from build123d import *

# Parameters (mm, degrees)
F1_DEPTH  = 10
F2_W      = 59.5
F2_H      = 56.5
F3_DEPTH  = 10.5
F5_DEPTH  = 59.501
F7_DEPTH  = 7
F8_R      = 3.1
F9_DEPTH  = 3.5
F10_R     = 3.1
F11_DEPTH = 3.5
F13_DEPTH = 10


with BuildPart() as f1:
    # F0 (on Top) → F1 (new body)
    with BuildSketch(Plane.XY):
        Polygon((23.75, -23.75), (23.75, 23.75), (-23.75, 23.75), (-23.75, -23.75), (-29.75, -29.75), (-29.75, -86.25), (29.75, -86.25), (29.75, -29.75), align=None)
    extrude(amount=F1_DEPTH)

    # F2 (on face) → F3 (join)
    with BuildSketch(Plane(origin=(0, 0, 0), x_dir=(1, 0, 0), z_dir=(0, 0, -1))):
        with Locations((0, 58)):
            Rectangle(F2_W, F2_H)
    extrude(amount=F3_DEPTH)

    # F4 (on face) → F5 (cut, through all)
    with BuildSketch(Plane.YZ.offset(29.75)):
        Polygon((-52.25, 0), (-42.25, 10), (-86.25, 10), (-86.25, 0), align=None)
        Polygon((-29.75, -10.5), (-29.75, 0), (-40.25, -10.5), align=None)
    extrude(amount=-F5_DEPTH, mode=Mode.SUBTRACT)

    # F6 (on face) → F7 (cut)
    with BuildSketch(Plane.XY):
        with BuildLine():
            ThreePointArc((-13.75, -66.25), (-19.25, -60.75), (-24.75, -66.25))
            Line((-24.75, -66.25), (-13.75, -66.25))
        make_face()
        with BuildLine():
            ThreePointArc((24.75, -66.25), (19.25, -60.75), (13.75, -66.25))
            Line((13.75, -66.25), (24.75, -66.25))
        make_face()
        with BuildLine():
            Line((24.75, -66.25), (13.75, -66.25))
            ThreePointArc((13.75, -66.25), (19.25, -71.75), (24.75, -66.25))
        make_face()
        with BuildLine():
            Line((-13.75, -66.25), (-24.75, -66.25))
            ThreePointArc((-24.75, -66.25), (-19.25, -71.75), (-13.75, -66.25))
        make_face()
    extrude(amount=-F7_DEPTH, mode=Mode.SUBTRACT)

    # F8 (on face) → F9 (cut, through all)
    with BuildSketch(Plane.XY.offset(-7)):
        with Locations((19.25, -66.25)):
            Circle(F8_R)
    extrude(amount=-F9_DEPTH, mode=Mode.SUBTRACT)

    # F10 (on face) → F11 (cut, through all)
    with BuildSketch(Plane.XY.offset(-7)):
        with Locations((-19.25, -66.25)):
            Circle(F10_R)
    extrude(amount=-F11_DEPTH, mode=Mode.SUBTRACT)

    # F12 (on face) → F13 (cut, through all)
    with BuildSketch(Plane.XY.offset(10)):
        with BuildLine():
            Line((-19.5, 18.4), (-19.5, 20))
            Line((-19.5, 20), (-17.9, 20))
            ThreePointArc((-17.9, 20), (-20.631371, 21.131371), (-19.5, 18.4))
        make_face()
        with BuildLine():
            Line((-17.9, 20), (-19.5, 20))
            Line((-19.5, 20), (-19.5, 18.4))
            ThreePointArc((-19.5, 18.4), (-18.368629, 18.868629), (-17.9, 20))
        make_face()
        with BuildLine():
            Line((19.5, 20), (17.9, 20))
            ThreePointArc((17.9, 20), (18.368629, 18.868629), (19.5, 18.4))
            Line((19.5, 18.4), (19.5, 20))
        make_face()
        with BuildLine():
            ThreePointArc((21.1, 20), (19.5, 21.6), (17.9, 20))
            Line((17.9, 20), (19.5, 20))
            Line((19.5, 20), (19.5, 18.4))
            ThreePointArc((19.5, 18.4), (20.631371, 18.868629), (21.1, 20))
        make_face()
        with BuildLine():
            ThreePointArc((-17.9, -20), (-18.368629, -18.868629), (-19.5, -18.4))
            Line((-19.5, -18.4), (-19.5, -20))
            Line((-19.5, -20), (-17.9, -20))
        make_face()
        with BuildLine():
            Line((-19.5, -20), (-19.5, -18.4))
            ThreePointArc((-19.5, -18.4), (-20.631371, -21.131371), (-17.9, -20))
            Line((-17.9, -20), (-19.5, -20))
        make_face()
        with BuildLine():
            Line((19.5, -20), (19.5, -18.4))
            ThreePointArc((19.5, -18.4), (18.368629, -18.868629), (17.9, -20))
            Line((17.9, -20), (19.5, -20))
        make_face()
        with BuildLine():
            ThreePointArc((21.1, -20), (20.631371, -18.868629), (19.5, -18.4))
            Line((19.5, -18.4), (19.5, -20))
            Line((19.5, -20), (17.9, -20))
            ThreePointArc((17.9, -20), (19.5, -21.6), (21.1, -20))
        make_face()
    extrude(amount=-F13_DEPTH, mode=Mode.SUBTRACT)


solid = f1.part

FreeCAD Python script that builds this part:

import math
import FreeCAD as App
import Part
import Sketcher

doc = App.newDocument("Part")
body = doc.addObject("PartDesign::Body", "Body")

# Sketch on XY plane
sketch1 = doc.addObject("Sketcher::SketchObject", "Sketch")
body.addObject(sketch1)
sketch1.AttachmentSupport = (doc.XY_Plane, [""])
sketch1.MapMode = "FlatFace"
sketch1.addGeometry(Part.LineSegment(App.Vector(24, -24, 0), App.Vector(24, 24, 0)), False)
sketch1.addGeometry(Part.LineSegment(App.Vector(24, 24, 0), App.Vector(-24, 24, 0)), False)
sketch1.addGeometry(Part.LineSegment(App.Vector(-24, 24, 0), App.Vector(-24, -24, 0)), False)
sketch1.addGeometry(Part.LineSegment(App.Vector(-24, -24, 0), App.Vector(-30, -30, 0)), False)
sketch1.addGeometry(Part.LineSegment(App.Vector(-30, -30, 0), App.Vector(-30, -86, 0)), False)
sketch1.addGeometry(Part.LineSegment(App.Vector(-30, -86, 0), App.Vector(30, -86, 0)), False)
sketch1.addGeometry(Part.LineSegment(App.Vector(30, -86, 0), App.Vector(30, -30, 0)), False)
sketch1.addGeometry(Part.LineSegment(App.Vector(30, -30, 0), App.Vector(24, -24, 0)), False)
sketch1.addConstraint(Sketcher.Constraint("Coincident", 0, 2, 1, 1))
sketch1.addConstraint(Sketcher.Constraint("Coincident", 1, 2, 2, 1))
sketch1.addConstraint(Sketcher.Constraint("Coincident", 2, 2, 3, 1))
sketch1.addConstraint(Sketcher.Constraint("Coincident", 3, 2, 4, 1))
sketch1.addConstraint(Sketcher.Constraint("Coincident", 4, 2, 5, 1))
sketch1.addConstraint(Sketcher.Constraint("Coincident", 5, 2, 6, 1))
sketch1.addConstraint(Sketcher.Constraint("Coincident", 6, 2, 7, 1))
sketch1.addConstraint(Sketcher.Constraint("Coincident", 7, 2, 0, 1))
sketch1.addConstraint(Sketcher.Constraint("Vertical", 0))
sketch1.addConstraint(Sketcher.Constraint("Horizontal", 1))
sketch1.addConstraint(Sketcher.Constraint("Vertical", 2))
sketch1.addConstraint(Sketcher.Constraint("Vertical", 4))
sketch1.addConstraint(Sketcher.Constraint("Horizontal", 5))
sketch1.addConstraint(Sketcher.Constraint("Vertical", 6))
sketch1.addConstraint(Sketcher.Constraint("Symmetric", 0, 2, 2, 2, -1, 1))
sketch1.addConstraint(Sketcher.Constraint("Symmetric", 3, 2, 6, 2, -2))
sketch1.addConstraint(Sketcher.Constraint("Perpendicular", 3, 7))
sketch1.addConstraint(Sketcher.Constraint("Horizontal", 2, 2, 7, 2))
sketch1.addConstraint(Sketcher.Constraint("Equal", 1, 0))
sketch1.addConstraint(Sketcher.Constraint("DistanceX", 1, 2, 1, 1, 47.5))
sketch1.addConstraint(Sketcher.Constraint("DistanceX", 5, 1, 5, 2, 59.5))
sketch1.addConstraint(Sketcher.Constraint("DistanceY", 4, 2, 4, 1, 56.5))
pad1 = doc.addObject("PartDesign::Pad", "Pad")
body.addObject(pad1)
pad1.Profile = sketch1
pad1.Length = 10

# Sketch on XY plane
sketch2 = doc.addObject("Sketcher::SketchObject", "Sketch001")
body.addObject(sketch2)
sketch2.AttachmentSupport = (doc.XY_Plane, [""])
sketch2.MapMode = "FlatFace"
sketch2.addGeometry(Part.LineSegment(App.Vector(-30, -86, 0), App.Vector(-30, -30, 0)), False)
sketch2.addGeometry(Part.LineSegment(App.Vector(-30, -30, 0), App.Vector(30, -30, 0)), False)
sketch2.addGeometry(Part.LineSegment(App.Vector(30, -30, 0), App.Vector(30, -86, 0)), False)
sketch2.addGeometry(Part.LineSegment(App.Vector(30, -86, 0), App.Vector(-30, -86, 0)), False)
sketch2.addConstraint(Sketcher.Constraint("Coincident", 0, 2, 1, 1))
sketch2.addConstraint(Sketcher.Constraint("Coincident", 1, 2, 2, 1))
sketch2.addConstraint(Sketcher.Constraint("Coincident", 2, 2, 3, 1))
sketch2.addConstraint(Sketcher.Constraint("Coincident", 3, 2, 0, 1))
sketch2.addConstraint(Sketcher.Constraint("Vertical", 0))
sketch2.addConstraint(Sketcher.Constraint("Horizontal", 1))
sketch2.addConstraint(Sketcher.Constraint("Vertical", 2))
sketch2.addConstraint(Sketcher.Constraint("Horizontal", 3))
sketch2.addConstraint(Sketcher.Constraint("DistanceX", 1, 1, 1, 2, 59.5))
sketch2.addConstraint(Sketcher.Constraint("DistanceY", 0, 1, 0, 2, 56.5))
sketch2.addConstraint(Sketcher.Constraint("DistanceX", 0, 2, -1, 1, 29.75))
sketch2.addConstraint(Sketcher.Constraint("DistanceY", 0, 2, -1, 1, 29.75))
pad2 = doc.addObject("PartDesign::Pad", "Pad001")
body.addObject(pad2)
pad2.Profile = sketch2
pad2.Length = 10.5
pad2.Reversed = True

# Sketch on YZ plane
sketch3 = doc.addObject("Sketcher::SketchObject", "Sketch002")
body.addObject(sketch3)
sketch3.AttachmentSupport = (doc.YZ_Plane, [""])
sketch3.MapMode = "FlatFace"
sketch3.AttachmentOffset = App.Placement(App.Vector(0, 0, 29.75), App.Rotation())
sketch3.addGeometry(Part.LineSegment(App.Vector(-52, 0, 0), App.Vector(-42, 10, 0)), False)
sketch3.addGeometry(Part.LineSegment(App.Vector(-42, 10, 0), App.Vector(-86, 10, 0)), False)
sketch3.addGeometry(Part.LineSegment(App.Vector(-86, 10, 0), App.Vector(-86, 0, 0)), False)
sketch3.addGeometry(Part.LineSegment(App.Vector(-86, 0, 0), App.Vector(-52, 0, 0)), False)
sketch3.addGeometry(Part.LineSegment(App.Vector(-30, -10, 0), App.Vector(-30, 0, 0)), False)
sketch3.addGeometry(Part.LineSegment(App.Vector(-30, 0, 0), App.Vector(-40, -10, 0)), False)
sketch3.addGeometry(Part.LineSegment(App.Vector(-40, -10, 0), App.Vector(-30, -10, 0)), False)
sketch3.addConstraint(Sketcher.Constraint("Coincident", 0, 2, 1, 1))
sketch3.addConstraint(Sketcher.Constraint("Coincident", 1, 2, 2, 1))
sketch3.addConstraint(Sketcher.Constraint("Coincident", 2, 2, 3, 1))
sketch3.addConstraint(Sketcher.Constraint("Coincident", 3, 2, 0, 1))
sketch3.addConstraint(Sketcher.Constraint("Coincident", 4, 2, 5, 1))
sketch3.addConstraint(Sketcher.Constraint("Coincident", 5, 2, 6, 1))
sketch3.addConstraint(Sketcher.Constraint("Coincident", 6, 2, 4, 1))
sketch3.addConstraint(Sketcher.Constraint("Horizontal", 1))
sketch3.addConstraint(Sketcher.Constraint("Vertical", 2))
sketch3.addConstraint(Sketcher.Constraint("Horizontal", 3))
sketch3.addConstraint(Sketcher.Constraint("Vertical", 4))
sketch3.addConstraint(Sketcher.Constraint("Horizontal", 6))
sketch3.addConstraint(Sketcher.Constraint("PointOnObject", 2, 2, -1))
sketch3.addConstraint(Sketcher.Constraint("PointOnObject", 4, 2, -1))
sketch3.addConstraint(Sketcher.Constraint("Parallel", 0, 5))
sketch3.addConstraint(Sketcher.Constraint("Equal", 6, 4))
sketch3.addConstraint(Sketcher.Constraint("DistanceX", 1, 2, 1, 1, 44.0))
sketch3.addConstraint(Sketcher.Constraint("DistanceX", 3, 1, 3, 2, 34.0))
sketch3.addConstraint(Sketcher.Constraint("DistanceX", 6, 1, 6, 2, 10.5))
sketch3.addConstraint(Sketcher.Constraint("DistanceX", 3, 2, 5, 2, 12.0))
sketch3.addConstraint(Sketcher.Constraint("DistanceX", 0, 2, -1, 1, 42.25))
pocket1 = doc.addObject("PartDesign::Pocket", "Pocket")
body.addObject(pocket1)
pocket1.Profile = sketch3
pocket1.Type = "ThroughAll"

# Sketch on XY plane
sketch4 = doc.addObject("Sketcher::SketchObject", "Sketch003")
body.addObject(sketch4)
sketch4.AttachmentSupport = (doc.XY_Plane, [""])
sketch4.MapMode = "FlatFace"
sketch4.addGeometry(Part.Circle(App.Vector(-19, -66, 0), App.Vector(0, 0, 1), 6), False)
sketch4.addGeometry(Part.Circle(App.Vector(19, -66, 0), App.Vector(0, 0, 1), 6), False)
sketch4.addConstraint(Sketcher.Constraint("Equal", 0, 1))
sketch4.addConstraint(Sketcher.Constraint("Symmetric", 0, 3, 1, 3, -2))
sketch4.addConstraint(Sketcher.Constraint("Diameter", 0, 11.0))
sketch4.addConstraint(Sketcher.Constraint("DistanceX", 0, 3, 1, 3, 38.5))
sketch4.addConstraint(Sketcher.Constraint("DistanceY", 0, 3, -1, 1, 66.25))
pocket2 = doc.addObject("PartDesign::Pocket", "Pocket001")
body.addObject(pocket2)
pocket2.Profile = sketch4
pocket2.Length = 7

# Sketch on XY plane
sketch5 = doc.addObject("Sketcher::SketchObject", "Sketch004")
body.addObject(sketch5)
sketch5.AttachmentSupport = (doc.XY_Plane, [""])
sketch5.MapMode = "FlatFace"
sketch5.AttachmentOffset = App.Placement(App.Vector(0, 0, -7), App.Rotation())
sketch5.addGeometry(Part.Circle(App.Vector(19.2, -66.2, 0), App.Vector(0, 0, 1), 3.1), False)
sketch5.addConstraint(Sketcher.Constraint("Diameter", 0, 6.2))
sketch5.addConstraint(Sketcher.Constraint("DistanceX", -1, 1, 0, 3, 19.25))
sketch5.addConstraint(Sketcher.Constraint("DistanceY", 0, 3, -1, 1, 66.25))
pocket3 = doc.addObject("PartDesign::Pocket", "Pocket002")
body.addObject(pocket3)
pocket3.Profile = sketch5
pocket3.Type = "ThroughAll"

# Sketch on XY plane
sketch6 = doc.addObject("Sketcher::SketchObject", "Sketch005")
body.addObject(sketch6)
sketch6.AttachmentSupport = (doc.XY_Plane, [""])
sketch6.MapMode = "FlatFace"
sketch6.AttachmentOffset = App.Placement(App.Vector(0, 0, -7), App.Rotation())
sketch6.addGeometry(Part.Circle(App.Vector(-19.2, -66.2, 0), App.Vector(0, 0, 1), 3.1), False)
sketch6.addConstraint(Sketcher.Constraint("Diameter", 0, 6.2))
sketch6.addConstraint(Sketcher.Constraint("DistanceX", 0, 3, -1, 1, 19.25))
sketch6.addConstraint(Sketcher.Constraint("DistanceY", 0, 3, -1, 1, 66.25))
pocket4 = doc.addObject("PartDesign::Pocket", "Pocket003")
body.addObject(pocket4)
pocket4.Profile = sketch6
pocket4.Type = "ThroughAll"

# Sketch on XY plane
sketch7 = doc.addObject("Sketcher::SketchObject", "Sketch006")
body.addObject(sketch7)
sketch7.AttachmentSupport = (doc.XY_Plane, [""])
sketch7.MapMode = "FlatFace"
sketch7.AttachmentOffset = App.Placement(App.Vector(0, 0, 10), App.Rotation())
sketch7.addGeometry(Part.ArcOfCircle(Part.Circle(App.Vector(-19.5, 20, 0), App.Vector(0, 0, 1), 1.6), math.radians(0), math.radians(270)), False)
sketch7.addGeometry(Part.ArcOfCircle(Part.Circle(App.Vector(-19.5, 20, 0), App.Vector(0, 0, 1), 1.6), math.radians(-90), math.radians(0)), False)
sketch7.addGeometry(Part.ArcOfCircle(Part.Circle(App.Vector(19.5, 20, 0), App.Vector(0, 0, 1), 1.6), math.radians(180), math.radians(270)), False)
sketch7.addGeometry(Part.ArcOfCircle(Part.Circle(App.Vector(19.5, 20, 0), App.Vector(0, 0, 1), 1.6), math.radians(-90), math.radians(0)), False)
sketch7.addGeometry(Part.ArcOfCircle(Part.Circle(App.Vector(19.5, 20, 0), App.Vector(0, 0, 1), 1.6), math.radians(0), math.radians(180)), False)
sketch7.addGeometry(Part.ArcOfCircle(Part.Circle(App.Vector(-19.5, -20, 0), App.Vector(0, 0, 1), 1.6), math.radians(0), math.radians(90)), False)
sketch7.addGeometry(Part.ArcOfCircle(Part.Circle(App.Vector(-19.5, -20, 0), App.Vector(0, 0, 1), 1.6), math.radians(90), math.radians(360)), False)
sketch7.addGeometry(Part.ArcOfCircle(Part.Circle(App.Vector(19.5, -20, 0), App.Vector(0, 0, 1), 1.6), math.radians(90), math.radians(180)), False)
sketch7.addGeometry(Part.ArcOfCircle(Part.Circle(App.Vector(19.5, -20, 0), App.Vector(0, 0, 1), 1.6), math.radians(180), math.radians(360)), False)
sketch7.addGeometry(Part.ArcOfCircle(Part.Circle(App.Vector(19.5, -20, 0), App.Vector(0, 0, 1), 1.6), math.radians(0), math.radians(90)), False)
sketch7.addConstraint(Sketcher.Constraint("Tangent", 0, 1, 1, 2))
sketch7.addConstraint(Sketcher.Constraint("Coincident", 1, 1, 0, 2))
sketch7.addConstraint(Sketcher.Constraint("Tangent", 2, 2, 3, 1))
sketch7.addConstraint(Sketcher.Constraint("Tangent", 3, 2, 4, 1))
sketch7.addConstraint(Sketcher.Constraint("Tangent", 4, 2, 2, 1))
sketch7.addConstraint(Sketcher.Constraint("Tangent", 5, 1, 6, 2))
sketch7.addConstraint(Sketcher.Constraint("Coincident", 6, 1, 5, 2))
sketch7.addConstraint(Sketcher.Constraint("Tangent", 7, 2, 8, 1))
sketch7.addConstraint(Sketcher.Constraint("Tangent", 8, 2, 9, 1))
sketch7.addConstraint(Sketcher.Constraint("Tangent", 9, 2, 7, 1))
sketch7.addConstraint(Sketcher.Constraint("Equal", 1, 2))
sketch7.addConstraint(Sketcher.Constraint("Equal", 4, 5))
sketch7.addConstraint(Sketcher.Constraint("Equal", 6, 7))
sketch7.addConstraint(Sketcher.Constraint("Symmetric", 2, 3, 5, 3, -1, 1))
sketch7.addConstraint(Sketcher.Constraint("Symmetric", 0, 3, 7, 3, -1, 1))
sketch7.addConstraint(Sketcher.Constraint("Symmetric", 0, 3, 2, 3, -2))
sketch7.addConstraint(Sketcher.Constraint("Horizontal", 4, 3, 0, 1))
sketch7.addConstraint(Sketcher.Constraint("Horizontal", 0, 1, 3, 2))
sketch7.addConstraint(Sketcher.Constraint("Horizontal", 3, 2, 4, 2))
sketch7.addConstraint(Sketcher.Constraint("Horizontal", 9, 3, 5, 1))
sketch7.addConstraint(Sketcher.Constraint("Horizontal", 5, 1, 7, 2))
sketch7.addConstraint(Sketcher.Constraint("Horizontal", 7, 2, 8, 2))
sketch7.addConstraint(Sketcher.Constraint("Vertical", 6, 3, 1, 1))
sketch7.addConstraint(Sketcher.Constraint("Vertical", 9, 3, 2, 2))
sketch7.addConstraint(Sketcher.Constraint("Vertical", 1, 1, 6, 1))
sketch7.addConstraint(Sketcher.Constraint("Vertical", 2, 2, 9, 2))
sketch7.addConstraint(Sketcher.Constraint("Radius", 0, 1.6))
sketch7.addConstraint(Sketcher.Constraint("DistanceY", -1, 1, 0, 3, 20.0))
sketch7.addConstraint(Sketcher.Constraint("DistanceX", 1, 3, 2, 3, 38.999999))
pocket5 = doc.addObject("PartDesign::Pocket", "Pocket004")
body.addObject(pocket5)
pocket5.Profile = sketch7
pocket5.Type = "ThroughAll"

doc.recompute()
